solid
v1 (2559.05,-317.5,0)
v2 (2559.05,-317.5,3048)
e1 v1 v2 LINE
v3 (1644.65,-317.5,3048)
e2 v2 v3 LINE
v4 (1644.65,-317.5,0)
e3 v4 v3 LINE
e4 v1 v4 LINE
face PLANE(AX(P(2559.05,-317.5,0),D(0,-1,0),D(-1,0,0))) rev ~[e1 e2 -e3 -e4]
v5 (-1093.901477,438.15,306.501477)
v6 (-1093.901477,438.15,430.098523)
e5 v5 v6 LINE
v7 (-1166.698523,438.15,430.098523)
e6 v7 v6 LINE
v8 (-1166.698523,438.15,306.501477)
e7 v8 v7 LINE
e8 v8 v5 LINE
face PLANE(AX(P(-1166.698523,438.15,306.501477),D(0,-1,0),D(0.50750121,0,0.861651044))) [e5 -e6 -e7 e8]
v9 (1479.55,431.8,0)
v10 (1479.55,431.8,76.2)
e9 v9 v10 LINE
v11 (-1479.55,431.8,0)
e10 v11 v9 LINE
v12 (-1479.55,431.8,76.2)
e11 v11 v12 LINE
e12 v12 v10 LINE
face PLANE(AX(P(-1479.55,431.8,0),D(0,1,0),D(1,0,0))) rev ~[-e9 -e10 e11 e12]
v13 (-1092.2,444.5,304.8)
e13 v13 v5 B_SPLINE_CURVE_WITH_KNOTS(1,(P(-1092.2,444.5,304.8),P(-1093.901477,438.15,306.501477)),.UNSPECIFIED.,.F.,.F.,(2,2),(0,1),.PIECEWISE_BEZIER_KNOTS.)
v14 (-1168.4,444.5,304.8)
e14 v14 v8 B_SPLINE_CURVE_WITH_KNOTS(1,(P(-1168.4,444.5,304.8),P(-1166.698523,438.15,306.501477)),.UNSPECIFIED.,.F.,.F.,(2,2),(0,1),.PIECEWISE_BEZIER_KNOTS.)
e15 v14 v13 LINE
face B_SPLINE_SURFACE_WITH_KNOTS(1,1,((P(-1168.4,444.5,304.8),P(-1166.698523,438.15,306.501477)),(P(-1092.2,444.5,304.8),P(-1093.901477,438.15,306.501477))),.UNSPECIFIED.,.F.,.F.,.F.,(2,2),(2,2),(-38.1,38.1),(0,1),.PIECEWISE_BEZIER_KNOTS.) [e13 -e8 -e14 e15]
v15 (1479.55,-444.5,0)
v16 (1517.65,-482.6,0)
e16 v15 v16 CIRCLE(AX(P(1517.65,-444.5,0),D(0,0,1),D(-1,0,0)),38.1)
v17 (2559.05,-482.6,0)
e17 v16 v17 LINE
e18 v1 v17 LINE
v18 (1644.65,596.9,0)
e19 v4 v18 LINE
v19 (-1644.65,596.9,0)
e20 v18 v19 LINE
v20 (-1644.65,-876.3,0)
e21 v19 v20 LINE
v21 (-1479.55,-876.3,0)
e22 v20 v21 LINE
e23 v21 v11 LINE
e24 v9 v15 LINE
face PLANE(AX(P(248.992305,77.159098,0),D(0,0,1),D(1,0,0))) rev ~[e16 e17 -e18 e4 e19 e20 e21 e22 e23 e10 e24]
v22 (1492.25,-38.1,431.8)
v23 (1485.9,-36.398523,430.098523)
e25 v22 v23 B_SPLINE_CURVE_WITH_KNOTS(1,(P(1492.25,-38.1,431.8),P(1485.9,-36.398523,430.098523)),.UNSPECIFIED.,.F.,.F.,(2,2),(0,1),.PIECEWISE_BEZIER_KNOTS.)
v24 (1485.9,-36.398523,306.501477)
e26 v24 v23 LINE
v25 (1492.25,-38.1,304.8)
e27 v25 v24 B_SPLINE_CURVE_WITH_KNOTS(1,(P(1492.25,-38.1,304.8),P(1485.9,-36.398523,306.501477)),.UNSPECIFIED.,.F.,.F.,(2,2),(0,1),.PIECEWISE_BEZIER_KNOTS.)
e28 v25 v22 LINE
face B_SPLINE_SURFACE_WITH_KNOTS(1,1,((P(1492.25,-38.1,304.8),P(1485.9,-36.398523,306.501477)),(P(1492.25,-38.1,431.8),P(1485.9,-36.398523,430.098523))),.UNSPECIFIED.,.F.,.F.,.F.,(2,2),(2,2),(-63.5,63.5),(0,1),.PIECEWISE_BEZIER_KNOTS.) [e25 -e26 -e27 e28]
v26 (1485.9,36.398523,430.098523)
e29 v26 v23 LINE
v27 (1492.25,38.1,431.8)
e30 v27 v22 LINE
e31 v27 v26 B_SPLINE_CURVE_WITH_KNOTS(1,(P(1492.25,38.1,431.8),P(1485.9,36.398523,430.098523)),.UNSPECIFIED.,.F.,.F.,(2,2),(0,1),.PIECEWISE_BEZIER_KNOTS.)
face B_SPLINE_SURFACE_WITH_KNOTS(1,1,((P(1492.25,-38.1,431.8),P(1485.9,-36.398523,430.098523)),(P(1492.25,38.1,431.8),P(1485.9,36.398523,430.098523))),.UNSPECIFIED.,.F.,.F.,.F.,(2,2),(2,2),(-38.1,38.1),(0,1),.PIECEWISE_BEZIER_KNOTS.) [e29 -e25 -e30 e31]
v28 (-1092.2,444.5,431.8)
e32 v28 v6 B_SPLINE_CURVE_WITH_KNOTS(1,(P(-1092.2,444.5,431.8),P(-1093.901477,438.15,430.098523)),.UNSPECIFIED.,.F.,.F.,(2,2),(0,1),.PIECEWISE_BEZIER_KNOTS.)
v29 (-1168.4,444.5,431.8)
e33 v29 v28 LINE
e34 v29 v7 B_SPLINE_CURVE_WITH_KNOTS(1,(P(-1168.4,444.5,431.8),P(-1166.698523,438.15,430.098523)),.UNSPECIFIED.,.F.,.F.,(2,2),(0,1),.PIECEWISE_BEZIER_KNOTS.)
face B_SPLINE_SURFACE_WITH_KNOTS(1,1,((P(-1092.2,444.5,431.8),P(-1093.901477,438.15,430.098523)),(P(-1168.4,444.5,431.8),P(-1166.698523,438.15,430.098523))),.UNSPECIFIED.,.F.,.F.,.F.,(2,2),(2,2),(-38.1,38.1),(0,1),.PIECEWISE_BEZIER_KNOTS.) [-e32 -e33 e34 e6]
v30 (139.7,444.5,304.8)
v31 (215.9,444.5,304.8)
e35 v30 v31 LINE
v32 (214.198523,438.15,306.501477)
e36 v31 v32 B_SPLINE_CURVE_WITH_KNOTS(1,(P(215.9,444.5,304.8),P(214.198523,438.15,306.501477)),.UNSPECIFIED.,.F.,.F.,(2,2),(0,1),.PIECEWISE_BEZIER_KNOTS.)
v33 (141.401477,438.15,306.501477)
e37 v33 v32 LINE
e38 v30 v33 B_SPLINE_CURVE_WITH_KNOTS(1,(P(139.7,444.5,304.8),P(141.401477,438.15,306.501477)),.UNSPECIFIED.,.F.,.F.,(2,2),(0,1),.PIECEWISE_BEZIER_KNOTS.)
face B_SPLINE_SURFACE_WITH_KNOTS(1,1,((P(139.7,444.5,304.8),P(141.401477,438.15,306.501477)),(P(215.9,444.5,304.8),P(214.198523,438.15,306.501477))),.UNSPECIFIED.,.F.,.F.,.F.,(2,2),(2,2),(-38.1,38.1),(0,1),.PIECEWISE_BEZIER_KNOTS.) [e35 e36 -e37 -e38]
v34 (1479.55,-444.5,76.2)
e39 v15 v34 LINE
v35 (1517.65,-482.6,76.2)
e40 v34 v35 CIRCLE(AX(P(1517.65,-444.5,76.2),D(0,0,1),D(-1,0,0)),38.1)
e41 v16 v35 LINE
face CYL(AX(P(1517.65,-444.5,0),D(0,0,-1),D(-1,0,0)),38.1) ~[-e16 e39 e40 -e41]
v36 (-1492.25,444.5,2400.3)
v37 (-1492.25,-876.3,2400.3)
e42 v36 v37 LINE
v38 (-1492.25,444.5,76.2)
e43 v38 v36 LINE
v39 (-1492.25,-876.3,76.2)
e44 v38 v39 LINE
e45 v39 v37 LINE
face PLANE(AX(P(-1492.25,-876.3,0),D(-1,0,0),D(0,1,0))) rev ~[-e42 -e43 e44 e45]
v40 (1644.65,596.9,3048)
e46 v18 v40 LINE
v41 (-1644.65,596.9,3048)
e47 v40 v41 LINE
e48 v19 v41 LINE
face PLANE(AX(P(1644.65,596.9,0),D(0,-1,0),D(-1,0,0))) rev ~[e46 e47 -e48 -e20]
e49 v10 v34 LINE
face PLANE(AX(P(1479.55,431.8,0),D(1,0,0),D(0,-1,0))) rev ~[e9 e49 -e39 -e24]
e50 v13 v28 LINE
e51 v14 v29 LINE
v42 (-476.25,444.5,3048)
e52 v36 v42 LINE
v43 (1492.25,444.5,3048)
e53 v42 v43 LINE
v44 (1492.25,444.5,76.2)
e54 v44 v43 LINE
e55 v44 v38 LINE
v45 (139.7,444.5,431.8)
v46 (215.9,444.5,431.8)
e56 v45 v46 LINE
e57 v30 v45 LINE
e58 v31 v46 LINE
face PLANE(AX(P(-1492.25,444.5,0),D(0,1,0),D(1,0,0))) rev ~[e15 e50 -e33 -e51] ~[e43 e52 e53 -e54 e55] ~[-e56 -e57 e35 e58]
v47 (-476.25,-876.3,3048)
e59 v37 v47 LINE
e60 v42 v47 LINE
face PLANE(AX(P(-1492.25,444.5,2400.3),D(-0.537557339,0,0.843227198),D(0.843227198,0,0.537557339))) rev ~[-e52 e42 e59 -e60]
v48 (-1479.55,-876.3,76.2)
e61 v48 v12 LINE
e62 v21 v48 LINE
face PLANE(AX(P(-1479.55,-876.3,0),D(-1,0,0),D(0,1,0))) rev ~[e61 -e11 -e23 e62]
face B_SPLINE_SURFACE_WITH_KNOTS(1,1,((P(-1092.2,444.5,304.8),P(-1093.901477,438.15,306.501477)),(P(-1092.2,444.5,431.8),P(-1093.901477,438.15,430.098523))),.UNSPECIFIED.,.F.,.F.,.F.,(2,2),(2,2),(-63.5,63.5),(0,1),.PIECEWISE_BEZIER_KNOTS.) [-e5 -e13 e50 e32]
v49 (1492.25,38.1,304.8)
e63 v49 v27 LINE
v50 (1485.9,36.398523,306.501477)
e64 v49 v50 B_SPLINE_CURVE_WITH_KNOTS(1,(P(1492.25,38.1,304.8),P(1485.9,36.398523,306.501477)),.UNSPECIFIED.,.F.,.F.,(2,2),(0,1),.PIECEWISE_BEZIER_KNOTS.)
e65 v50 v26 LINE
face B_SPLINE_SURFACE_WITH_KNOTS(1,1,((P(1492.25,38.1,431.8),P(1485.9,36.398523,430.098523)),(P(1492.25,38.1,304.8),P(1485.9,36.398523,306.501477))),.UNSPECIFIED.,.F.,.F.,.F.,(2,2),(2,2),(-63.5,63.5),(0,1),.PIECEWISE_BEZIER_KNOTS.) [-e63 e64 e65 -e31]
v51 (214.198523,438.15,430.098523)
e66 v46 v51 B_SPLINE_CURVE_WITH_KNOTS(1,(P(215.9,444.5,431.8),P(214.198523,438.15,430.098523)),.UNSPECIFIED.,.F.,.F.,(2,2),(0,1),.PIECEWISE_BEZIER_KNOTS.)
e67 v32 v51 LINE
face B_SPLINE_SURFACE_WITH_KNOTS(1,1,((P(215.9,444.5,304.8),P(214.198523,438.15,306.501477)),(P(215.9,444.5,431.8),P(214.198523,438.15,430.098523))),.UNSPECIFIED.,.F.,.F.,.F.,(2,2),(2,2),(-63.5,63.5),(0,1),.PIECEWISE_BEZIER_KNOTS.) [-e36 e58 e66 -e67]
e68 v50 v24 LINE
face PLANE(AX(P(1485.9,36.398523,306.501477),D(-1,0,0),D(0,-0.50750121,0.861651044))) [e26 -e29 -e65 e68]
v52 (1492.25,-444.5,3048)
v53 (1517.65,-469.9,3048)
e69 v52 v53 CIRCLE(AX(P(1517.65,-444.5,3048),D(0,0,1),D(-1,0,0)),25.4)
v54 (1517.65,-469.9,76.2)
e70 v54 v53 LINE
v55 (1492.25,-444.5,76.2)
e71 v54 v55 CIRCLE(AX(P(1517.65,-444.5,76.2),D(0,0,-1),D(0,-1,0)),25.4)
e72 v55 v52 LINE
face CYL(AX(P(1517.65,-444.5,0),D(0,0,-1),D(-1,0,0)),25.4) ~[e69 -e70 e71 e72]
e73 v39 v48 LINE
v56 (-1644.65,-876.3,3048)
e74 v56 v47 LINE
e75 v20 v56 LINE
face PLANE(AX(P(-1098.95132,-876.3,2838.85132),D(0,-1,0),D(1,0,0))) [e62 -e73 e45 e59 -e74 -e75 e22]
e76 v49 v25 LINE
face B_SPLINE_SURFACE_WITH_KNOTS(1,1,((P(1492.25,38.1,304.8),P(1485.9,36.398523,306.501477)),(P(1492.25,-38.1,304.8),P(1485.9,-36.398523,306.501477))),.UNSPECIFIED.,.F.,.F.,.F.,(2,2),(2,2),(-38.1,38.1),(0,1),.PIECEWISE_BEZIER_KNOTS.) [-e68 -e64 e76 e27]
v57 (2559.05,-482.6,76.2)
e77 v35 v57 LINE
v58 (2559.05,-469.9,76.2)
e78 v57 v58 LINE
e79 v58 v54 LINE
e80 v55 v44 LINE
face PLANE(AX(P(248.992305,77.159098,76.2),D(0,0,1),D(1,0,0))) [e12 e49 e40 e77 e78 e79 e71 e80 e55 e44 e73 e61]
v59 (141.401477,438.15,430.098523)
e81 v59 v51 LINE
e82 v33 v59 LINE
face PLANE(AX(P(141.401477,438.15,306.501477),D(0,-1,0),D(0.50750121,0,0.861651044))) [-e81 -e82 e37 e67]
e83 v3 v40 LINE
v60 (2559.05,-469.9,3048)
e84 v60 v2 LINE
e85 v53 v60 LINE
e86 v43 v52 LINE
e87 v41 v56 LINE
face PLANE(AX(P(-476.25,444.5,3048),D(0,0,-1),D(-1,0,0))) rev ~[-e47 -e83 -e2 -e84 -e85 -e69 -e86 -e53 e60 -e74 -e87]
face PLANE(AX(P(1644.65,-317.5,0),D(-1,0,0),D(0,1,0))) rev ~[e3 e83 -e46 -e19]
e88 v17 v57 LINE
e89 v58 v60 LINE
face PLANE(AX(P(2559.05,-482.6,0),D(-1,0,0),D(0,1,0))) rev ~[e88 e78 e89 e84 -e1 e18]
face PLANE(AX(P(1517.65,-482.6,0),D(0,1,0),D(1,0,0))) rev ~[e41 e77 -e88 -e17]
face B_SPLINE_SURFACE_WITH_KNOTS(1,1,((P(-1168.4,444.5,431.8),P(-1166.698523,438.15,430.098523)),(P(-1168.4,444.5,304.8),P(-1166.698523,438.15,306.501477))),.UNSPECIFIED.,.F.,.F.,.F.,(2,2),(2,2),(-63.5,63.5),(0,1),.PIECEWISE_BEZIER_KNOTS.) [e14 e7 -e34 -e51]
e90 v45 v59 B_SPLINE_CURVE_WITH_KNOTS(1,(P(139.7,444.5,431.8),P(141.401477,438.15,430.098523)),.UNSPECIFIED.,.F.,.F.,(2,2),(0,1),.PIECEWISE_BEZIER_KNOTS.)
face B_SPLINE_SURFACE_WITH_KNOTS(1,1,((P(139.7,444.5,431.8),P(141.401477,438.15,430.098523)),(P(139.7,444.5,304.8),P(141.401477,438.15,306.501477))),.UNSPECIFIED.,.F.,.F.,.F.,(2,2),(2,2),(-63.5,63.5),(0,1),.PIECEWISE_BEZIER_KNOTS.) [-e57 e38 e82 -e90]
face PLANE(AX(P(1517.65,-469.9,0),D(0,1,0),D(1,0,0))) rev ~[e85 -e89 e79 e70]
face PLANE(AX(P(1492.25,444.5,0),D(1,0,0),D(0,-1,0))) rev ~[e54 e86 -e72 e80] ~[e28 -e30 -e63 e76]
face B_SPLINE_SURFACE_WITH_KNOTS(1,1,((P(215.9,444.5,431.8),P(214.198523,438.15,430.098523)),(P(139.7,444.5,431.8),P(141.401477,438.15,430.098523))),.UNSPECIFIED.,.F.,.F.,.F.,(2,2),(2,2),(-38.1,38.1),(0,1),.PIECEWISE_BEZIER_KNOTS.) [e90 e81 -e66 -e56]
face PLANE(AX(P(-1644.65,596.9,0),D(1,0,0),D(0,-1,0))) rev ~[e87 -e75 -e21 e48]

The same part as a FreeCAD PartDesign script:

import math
import FreeCAD as App
import Part
import Sketcher
from FreeCAD import Vector
Q = App.Units.Quantity

doc = App.newDocument("Part")
params = doc.addObject("Spreadsheet::Sheet", "Params")
for row, (alias, value) in enumerate([
    ("sketch1_radius", "1 in"),
    ("sketch1_width", "41 in"),
    ("sketch1_width2", "36 in"),
    ("sketch1_width3", "6 in"),
    ("sketch1_height", "35 in"),
    ("pad1_length", "120 in"),
    ("sketch2_radius", "1 in"),
    ("sketch2_radius2", "1.5 in"),
    ("sketch2_width", "41 in"),
    ("sketch2_height", "35 in"),
    ("sketch2_height2", "52 in"),
    ("pad2_length", "3 in"),
    ("sketch3_width", "3 in"),
    ("sketch3_height", "5 in"),
    ("pad3_length", "0.25 in"),
    ("pad3_taper", "-15 deg"),
    ("sketch4_width", "3 in"),
    ("sketch4_height", "5 in"),
    ("pad4_length", "0.25 in"),
    ("pad4_taper", "-15 deg"),
    ("sketch5_width", "40 in"),
    ("sketch5_height", "25.5 in"),
    ("pad5_length", "52 in"),
], start=1):
    params.set(f"A{row}", alias)
    params.set(f"B{row}", "=" + value)
    params.setAlias(f"B{row}", alias)

body = doc.addObject("PartDesign::Body", "Body")

sketch1 = doc.addObject("Sketcher::SketchObject", "Sketch")
body.addObject(sketch1)
sketch1.AttachmentSupport = (doc.XY_Plane, [""])
sketch1.MapMode = "FlatFace"
sketch1.addGeometry([
    Part.LineSegment(Vector(-1492, 444, 0), Vector(1492, 444, 0)),
    Part.LineSegment(Vector(1492, 444, 0), Vector(1492, -444, 0)),
    Part.ArcOfCircle(Part.Circle(Vector(1518, -444, 0), Vector(0, 0, 1), 25), math.radians(180), math.radians(270)),
    Part.LineSegment(Vector(1518, -470, 0), Vector(2559, -470, 0)),
    Part.LineSegment(Vector(2559, -470, 0), Vector(2559, -318, 0)),
    Part.LineSegment(Vector(2559, -318, 0), Vector(1645, -318, 0)),
    Part.LineSegment(Vector(1645, -318, 0), Vector(1645, 597, 0)),
    Part.LineSegment(Vector(1645, 597, 0), Vector(-1645, 597, 0)),
    Part.LineSegment(Vector(-1645, 597, 0), Vector(-1645, -876, 0)),
    Part.LineSegment(Vector(-1645, -876, 0), Vector(-1492, -876, 0)),
    Part.LineSegment(Vector(-1492, -876, 0), Vector(-1492, 444, 0)),
], False)
sketch1.addConstraint([
    Sketcher.Constraint("Coincident", 0, 2, 1, 1),
    Sketcher.Constraint("Tangent", 1, 2, 2, 1),
    Sketcher.Constraint("Tangent", 2, 2, 3, 1),
    Sketcher.Constraint("Coincident", 3, 2, 4, 1),
    Sketcher.Constraint("Coincident", 4, 2, 5, 1),
    Sketcher.Constraint("Coincident", 5, 2, 6, 1),
    Sketcher.Constraint("Coincident", 6, 2, 7, 1),
    Sketcher.Constraint("Coincident", 7, 2, 8, 1),
    Sketcher.Constraint("Coincident", 8, 2, 9, 1),
    Sketcher.Constraint("Coincident", 9, 2, 10, 1),
    Sketcher.Constraint("Coincident", 10, 2, 0, 1),
    Sketcher.Constraint("Horizontal", 0),
    Sketcher.Constraint("Vertical", 1),
    Sketcher.Constraint("Horizontal", 3),
    Sketcher.Constraint("Vertical", 4),
    Sketcher.Constraint("Horizontal", 5),
    Sketcher.Constraint("Vertical", 6),
    Sketcher.Constraint("Horizontal", 7),
    Sketcher.Constraint("Vertical", 8),
    Sketcher.Constraint("Horizontal", 9),
    Sketcher.Constraint("Vertical", 10),
    Sketcher.Constraint("Symmetric", 1, 2, 10, 2, -1, 1),
    Sketcher.Constraint("Equal", 9, 4),
    Sketcher.Constraint("Equal", 5, 6),
    Sketcher.Constraint("Radius", 2, Q("1 in")),
    Sketcher.Constraint("DistanceX", 3, 1, 3, 2, Q("41 in")),
    Sketcher.Constraint("DistanceX", 5, 2, 5, 1, Q("36 in")),
    Sketcher.Constraint("DistanceX", 9, 1, 9, 2, Q("6 in")),
    Sketcher.Constraint("DistanceY", 1, 2, 1, 1, Q("35 in")),
    Sketcher.Constraint("DistanceY", 8, 2, 8, 1, Q("58 in")),
    Sketcher.Constraint("DistanceX", 0, 1, 0, 2, Q("117.5 in")),
])
sketch1.setExpression("Constraints[24]", "Params.sketch1_radius")
sketch1.setExpression("Constraints[25]", "Params.sketch1_width")
sketch1.setExpression("Constraints[26]", "Params.sketch1_width2")
sketch1.setExpression("Constraints[27]", "Params.sketch1_width3")
sketch1.setExpression("Constraints[28]", "Params.sketch1_height")
pad1 = doc.addObject("PartDesign::Pad", "Pad")
body.addObject(pad1)
pad1.Profile = sketch1
pad1.setExpression("Length", "Params.pad1_length")

sketch2 = doc.addObject("Sketcher::SketchObject", "Sketch001")
body.addObject(sketch2)
sketch2.AttachmentSupport = (doc.XY_Plane, [""])
sketch2.MapMode = "FlatFace"
sketch2.addGeometry([
    Part.LineSegment(Vector(1492, -444, 0), Vector(1492, 444, 0)),
    Part.LineSegment(Vector(1492, 444, 0), Vector(-1492, 444, 0)),
    Part.LineSegment(Vector(-1492, 444, 0), Vector(-1492, -876, 0)),
    Part.LineSegment(Vector(-1492, -876, 0), Vector(-1480, -876, 0)),
    Part.LineSegment(Vector(-1480, -876, 0), Vector(-1480, 432, 0)),
    Part.LineSegment(Vector(-1480, 432, 0), Vector(1480, 432, 0)),
    Part.LineSegment(Vector(1480, 432, 0), Vector(1480, -444, 0)),
    Part.ArcOfCircle(Part.Circle(Vector(1518, -444, 0), Vector(0, 0, 1), 38), math.radians(180), math.radians(270)),
    Part.LineSegment(Vector(1518, -483, 0), Vector(2559, -483, 0)),
    Part.LineSegment(Vector(2559, -483, 0), Vector(2559, -470, 0)),
    Part.LineSegment(Vector(2559, -470, 0), Vector(1518, -470, 0)),
    Part.ArcOfCircle(Part.Circle(Vector(1518, -444, 0), Vector(0, 0, 1), 25), math.radians(180), math.radians(270)),
], False)
sketch2.addConstraint([
    Sketcher.Constraint("Coincident", 0, 2, 1, 1),
    Sketcher.Constraint("Coincident", 1, 2, 2, 1),
    Sketcher.Constraint("Coincident", 2, 2, 3, 1),
    Sketcher.Constraint("Coincident", 3, 2, 4, 1),
    Sketcher.Constraint("Coincident", 4, 2, 5, 1),
    Sketcher.Constraint("Coincident", 5, 2, 6, 1),
    Sketcher.Constraint("Tangent", 6, 2, 7, 1),
    Sketcher.Constraint("Tangent", 7, 2, 8, 1),
    Sketcher.Constraint("Coincident", 8, 2, 9, 1),
    Sketcher.Constraint("Coincident", 9, 2, 10, 1),
    Sketcher.Constraint("Tangent", 10, 2, 11, 2),
    Sketcher.Constraint("Tangent", 11, 1, 0, 1),
    Sketcher.Constraint("Vertical", 0),
    Sketcher.Constraint("Horizontal", 1),
    Sketcher.Constraint("Vertical", 2),
    Sketcher.Constraint("Horizontal", 3),
    Sketcher.Constraint("Vertical", 4),
    Sketcher.Constraint("Horizontal", 5),
    Sketcher.Constraint("Vertical", 6),
    Sketcher.Constraint("Horizontal", 8),
    Sketcher.Constraint("Vertical", 9),
    Sketcher.Constraint("Horizontal", 10),
    Sketcher.Constraint("Coincident", 11, 3, 7, 3),
    Sketcher.Constraint("Symmetric", 1, 2, 11, 1, -1, 1),
    Sketcher.Constraint("Equal", 3, 9),
    Sketcher.Constraint("Radius", 11, Q("1 in")),
    Sketcher.Constraint("Radius", 7, Q("1.5 in")),
    Sketcher.Constraint("DistanceX", 8, 1, 8, 2, Q("41 in")),
    Sketcher.Constraint("DistanceY", 0, 1, 0, 2, Q("35 in")),
    Sketcher.Constraint("DistanceY", 2, 2, 2, 1, Q("52 in")),
    Sketcher.Constraint("DistanceX", 1, 2, 1, 1, Q("117.5 in")),
    Sketcher.Constraint("DistanceY", 4, 1, 4, 2, Q("51.5 in")),
])
sketch2.setExpression("Constraints[25]", "Params.sketch2_radius")
sketch2.setExpression("Constraints[26]", "Params.sketch2_radius2")
sketch2.setExpression("Constraints[27]", "Params.sketch2_width")
sketch2.setExpression("Constraints[28]", "Params.sketch2_height")
sketch2.setExpression("Constraints[29]", "Params.sketch2_height2")
pad2 = doc.addObject("PartDesign::Pad", "Pad001")
body.addObject(pad2)
pad2.Profile = sketch2
pad2.setExpression("Length", "Params.pad2_length")

sketch3 = doc.addObject("Sketcher::SketchObject", "Sketch002")
body.addObject(sketch3)
sketch3.AttachmentSupport = (doc.XZ_Plane, [""])
sketch3.MapMode = "FlatFace"
sketch3.AttachmentOffset = App.Placement(Vector(0, 0, -17.5 * 25.4), App.Rotation())
sketch3.addGeometry([
    Part.LineSegment(Vector(-1168, 432, 0), Vector(-1168, 305, 0)),
    Part.LineSegment(Vector(-1168, 305, 0), Vector(-1092, 305, 0)),
    Part.LineSegment(Vector(-1092, 305, 0), Vector(-1092, 432, 0)),
    Part.LineSegment(Vector(-1092, 432, 0), Vector(-1168, 432, 0)),
    Part.LineSegment(Vector(140, 432, 0), Vector(140, 305, 0)),
    Part.LineSegment(Vector(140, 305, 0), Vector(216, 305, 0)),
    Part.LineSegment(Vector(216, 305, 0), Vector(216, 432, 0)),
    Part.LineSegment(Vector(216, 432, 0), Vector(140, 432, 0)),
], False)
sketch3.addConstraint([
    Sketcher.Constraint("Coincident", 0, 2, 1, 1),
    Sketcher.Constraint("Coincident", 1, 2, 2, 1),
    Sketcher.Constraint("Coincident", 2, 2, 3, 1),
    Sketcher.Constraint("Coincident", 3, 2, 0, 1),
    Sketcher.Constraint("Coincident", 4, 2, 5, 1),
    Sketcher.Constraint("Coincident", 5, 2, 6, 1),
    Sketcher.Constraint("Coincident", 6, 2, 7, 1),
    Sketcher.Constraint("Coincident", 7, 2, 4, 1),
    Sketcher.Constraint("Vertical", 0),
    Sketcher.Constraint("Horizontal", 1),
    Sketcher.Constraint("Vertical", 2),
    Sketcher.Constraint("Horizontal", 3),
    Sketcher.Constraint("Vertical", 4),
    Sketcher.Constraint("Horizontal", 5),
    Sketcher.Constraint("Vertical", 6),
    Sketcher.Constraint("Horizontal", 7),
    Sketcher.Constraint("Horizontal", 1, 2, 4, 2),
    Sketcher.Constraint("Horizontal", 3, 2, 6, 2),
    Sketcher.Constraint("Equal", 3, 5),
    Sketcher.Constraint("DistanceX", 1, 1, 1, 2, Q("3 in")),
    Sketcher.Constraint("DistanceY", 0, 2, 0, 1, Q("5 in")),
    Sketcher.Constraint("DistanceX", 0, 2, -1, 1, Q("46 in")),
    Sketcher.Constraint("DistanceY", -1, 1, 0, 2, Q("12 in")),
    Sketcher.Constraint("DistanceX", -1, 1, 4, 2, Q("5.5 in")),
])
sketch3.setExpression("Constraints[19]", "Params.sketch3_width")
sketch3.setExpression("Constraints[20]", "Params.sketch3_height")
pad3 = doc.addObject("PartDesign::Pad", "Pad002")
body.addObject(pad3)
pad3.Profile = sketch3
pad3.setExpression("Length", "Params.pad3_length")
pad3.setExpression("TaperAngle", "Params.pad3_taper")

sketch4 = doc.addObject("Sketcher::SketchObject", "Sketch003")
body.addObject(sketch4)
sketch4.AttachmentSupport = (doc.YZ_Plane, [""])
sketch4.MapMode = "FlatFace"
sketch4.AttachmentOffset = App.Placement(Vector(0, 0, 58.75 * 25.4), App.Rotation())
sketch4.addGeometry([
    Part.LineSegment(Vector(38, 432, 0), Vector(38, 305, 0)),
    Part.LineSegment(Vector(38, 305, 0), Vector(-38, 305, 0)),
    Part.LineSegment(Vector(-38, 305, 0), Vector(-38, 432, 0)),
    Part.LineSegment(Vector(-38, 432, 0), Vector(38, 432, 0)),
], False)
sketch4.addConstraint([
    Sketcher.Constraint("Coincident", 0, 2, 1, 1),
    Sketcher.Constraint("Coincident", 1, 2, 2, 1),
    Sketcher.Constraint("Coincident", 2, 2, 3, 1),
    Sketcher.Constraint("Coincident", 3, 2, 0, 1),
    Sketcher.Constraint("Vertical", 0),
    Sketcher.Constraint("Horizontal", 1),
    Sketcher.Constraint("Vertical", 2),
    Sketcher.Constraint("Horizontal", 3),
    Sketcher.Constraint("DistanceX", 1, 2, 1, 1, Q("3 in")),
    Sketcher.Constraint("DistanceY", 0, 2, 0, 1, Q("5 in")),
    Sketcher.Constraint("DistanceY", -1, 1, 0, 2, Q("12 in")),
    Sketcher.Constraint("DistanceX", -1, 1, 0, 2, Q("1.5 in")),
])
sketch4.setExpression("Constraints[8]", "Params.sketch4_width")
sketch4.setExpression("Constraints[9]", "Params.sketch4_height")
pad4 = doc.addObject("PartDesign::Pad", "Pad003")
body.addObject(pad4)
pad4.Profile = sketch4
pad4.setExpression("Length", "Params.pad4_length")
pad4.Reversed = True
pad4.setExpression("TaperAngle", "Params.pad4_taper")

sketch5 = doc.addObject("Sketcher::SketchObject", "Sketch004")
body.addObject(sketch5)
sketch5.AttachmentSupport = (doc.XZ_Plane, [""])
sketch5.MapMode = "FlatFace"
sketch5.AttachmentOffset = App.Placement(Vector(0, 0, -17.5 * 25.4), App.Rotation())
sketch5.addGeometry([
    Part.LineSegment(Vector(-476, 3048, 0), Vector(-1492, 3048, 0)),
    Part.LineSegment(Vector(-1492, 3048, 0), Vector(-1492, 2400, 0)),
    Part.LineSegment(Vector(-1492, 2400, 0), Vector(-476, 3048, 0)),
], False)
sketch5.addConstraint([
    Sketcher.Constraint("Coincident", 0, 2, 1, 1),
    Sketcher.Constraint("Coincident", 1, 2, 2, 1),
    Sketcher.Constraint("Coincident", 2, 2, 0, 1),
    Sketcher.Constraint("Horizontal", 0),
    Sketcher.Constraint("Vertical", 1),
    Sketcher.Constraint("DistanceX", 0, 2, 0, 1, Q("40 in")),
    Sketcher.Constraint("DistanceY", 1, 2, 1, 1, Q("25.5 in")),
    Sketcher.Constraint("DistanceY", -1, 1, 0, 2, Q("120 in")),
    Sketcher.Constraint("DistanceX", 0, 2, -1, 1, Q("58.75 in")),
])
sketch5.setExpression("Constraints[5]", "Params.sketch5_width")
sketch5.setExpression("Constraints[6]", "Params.sketch5_height")
pad5 = doc.addObject("PartDesign::Pad", "Pad004")
body.addObject(pad5)
pad5.Profile = sketch5
pad5.setExpression("Length", "Params.pad5_length")

doc.recompute()
